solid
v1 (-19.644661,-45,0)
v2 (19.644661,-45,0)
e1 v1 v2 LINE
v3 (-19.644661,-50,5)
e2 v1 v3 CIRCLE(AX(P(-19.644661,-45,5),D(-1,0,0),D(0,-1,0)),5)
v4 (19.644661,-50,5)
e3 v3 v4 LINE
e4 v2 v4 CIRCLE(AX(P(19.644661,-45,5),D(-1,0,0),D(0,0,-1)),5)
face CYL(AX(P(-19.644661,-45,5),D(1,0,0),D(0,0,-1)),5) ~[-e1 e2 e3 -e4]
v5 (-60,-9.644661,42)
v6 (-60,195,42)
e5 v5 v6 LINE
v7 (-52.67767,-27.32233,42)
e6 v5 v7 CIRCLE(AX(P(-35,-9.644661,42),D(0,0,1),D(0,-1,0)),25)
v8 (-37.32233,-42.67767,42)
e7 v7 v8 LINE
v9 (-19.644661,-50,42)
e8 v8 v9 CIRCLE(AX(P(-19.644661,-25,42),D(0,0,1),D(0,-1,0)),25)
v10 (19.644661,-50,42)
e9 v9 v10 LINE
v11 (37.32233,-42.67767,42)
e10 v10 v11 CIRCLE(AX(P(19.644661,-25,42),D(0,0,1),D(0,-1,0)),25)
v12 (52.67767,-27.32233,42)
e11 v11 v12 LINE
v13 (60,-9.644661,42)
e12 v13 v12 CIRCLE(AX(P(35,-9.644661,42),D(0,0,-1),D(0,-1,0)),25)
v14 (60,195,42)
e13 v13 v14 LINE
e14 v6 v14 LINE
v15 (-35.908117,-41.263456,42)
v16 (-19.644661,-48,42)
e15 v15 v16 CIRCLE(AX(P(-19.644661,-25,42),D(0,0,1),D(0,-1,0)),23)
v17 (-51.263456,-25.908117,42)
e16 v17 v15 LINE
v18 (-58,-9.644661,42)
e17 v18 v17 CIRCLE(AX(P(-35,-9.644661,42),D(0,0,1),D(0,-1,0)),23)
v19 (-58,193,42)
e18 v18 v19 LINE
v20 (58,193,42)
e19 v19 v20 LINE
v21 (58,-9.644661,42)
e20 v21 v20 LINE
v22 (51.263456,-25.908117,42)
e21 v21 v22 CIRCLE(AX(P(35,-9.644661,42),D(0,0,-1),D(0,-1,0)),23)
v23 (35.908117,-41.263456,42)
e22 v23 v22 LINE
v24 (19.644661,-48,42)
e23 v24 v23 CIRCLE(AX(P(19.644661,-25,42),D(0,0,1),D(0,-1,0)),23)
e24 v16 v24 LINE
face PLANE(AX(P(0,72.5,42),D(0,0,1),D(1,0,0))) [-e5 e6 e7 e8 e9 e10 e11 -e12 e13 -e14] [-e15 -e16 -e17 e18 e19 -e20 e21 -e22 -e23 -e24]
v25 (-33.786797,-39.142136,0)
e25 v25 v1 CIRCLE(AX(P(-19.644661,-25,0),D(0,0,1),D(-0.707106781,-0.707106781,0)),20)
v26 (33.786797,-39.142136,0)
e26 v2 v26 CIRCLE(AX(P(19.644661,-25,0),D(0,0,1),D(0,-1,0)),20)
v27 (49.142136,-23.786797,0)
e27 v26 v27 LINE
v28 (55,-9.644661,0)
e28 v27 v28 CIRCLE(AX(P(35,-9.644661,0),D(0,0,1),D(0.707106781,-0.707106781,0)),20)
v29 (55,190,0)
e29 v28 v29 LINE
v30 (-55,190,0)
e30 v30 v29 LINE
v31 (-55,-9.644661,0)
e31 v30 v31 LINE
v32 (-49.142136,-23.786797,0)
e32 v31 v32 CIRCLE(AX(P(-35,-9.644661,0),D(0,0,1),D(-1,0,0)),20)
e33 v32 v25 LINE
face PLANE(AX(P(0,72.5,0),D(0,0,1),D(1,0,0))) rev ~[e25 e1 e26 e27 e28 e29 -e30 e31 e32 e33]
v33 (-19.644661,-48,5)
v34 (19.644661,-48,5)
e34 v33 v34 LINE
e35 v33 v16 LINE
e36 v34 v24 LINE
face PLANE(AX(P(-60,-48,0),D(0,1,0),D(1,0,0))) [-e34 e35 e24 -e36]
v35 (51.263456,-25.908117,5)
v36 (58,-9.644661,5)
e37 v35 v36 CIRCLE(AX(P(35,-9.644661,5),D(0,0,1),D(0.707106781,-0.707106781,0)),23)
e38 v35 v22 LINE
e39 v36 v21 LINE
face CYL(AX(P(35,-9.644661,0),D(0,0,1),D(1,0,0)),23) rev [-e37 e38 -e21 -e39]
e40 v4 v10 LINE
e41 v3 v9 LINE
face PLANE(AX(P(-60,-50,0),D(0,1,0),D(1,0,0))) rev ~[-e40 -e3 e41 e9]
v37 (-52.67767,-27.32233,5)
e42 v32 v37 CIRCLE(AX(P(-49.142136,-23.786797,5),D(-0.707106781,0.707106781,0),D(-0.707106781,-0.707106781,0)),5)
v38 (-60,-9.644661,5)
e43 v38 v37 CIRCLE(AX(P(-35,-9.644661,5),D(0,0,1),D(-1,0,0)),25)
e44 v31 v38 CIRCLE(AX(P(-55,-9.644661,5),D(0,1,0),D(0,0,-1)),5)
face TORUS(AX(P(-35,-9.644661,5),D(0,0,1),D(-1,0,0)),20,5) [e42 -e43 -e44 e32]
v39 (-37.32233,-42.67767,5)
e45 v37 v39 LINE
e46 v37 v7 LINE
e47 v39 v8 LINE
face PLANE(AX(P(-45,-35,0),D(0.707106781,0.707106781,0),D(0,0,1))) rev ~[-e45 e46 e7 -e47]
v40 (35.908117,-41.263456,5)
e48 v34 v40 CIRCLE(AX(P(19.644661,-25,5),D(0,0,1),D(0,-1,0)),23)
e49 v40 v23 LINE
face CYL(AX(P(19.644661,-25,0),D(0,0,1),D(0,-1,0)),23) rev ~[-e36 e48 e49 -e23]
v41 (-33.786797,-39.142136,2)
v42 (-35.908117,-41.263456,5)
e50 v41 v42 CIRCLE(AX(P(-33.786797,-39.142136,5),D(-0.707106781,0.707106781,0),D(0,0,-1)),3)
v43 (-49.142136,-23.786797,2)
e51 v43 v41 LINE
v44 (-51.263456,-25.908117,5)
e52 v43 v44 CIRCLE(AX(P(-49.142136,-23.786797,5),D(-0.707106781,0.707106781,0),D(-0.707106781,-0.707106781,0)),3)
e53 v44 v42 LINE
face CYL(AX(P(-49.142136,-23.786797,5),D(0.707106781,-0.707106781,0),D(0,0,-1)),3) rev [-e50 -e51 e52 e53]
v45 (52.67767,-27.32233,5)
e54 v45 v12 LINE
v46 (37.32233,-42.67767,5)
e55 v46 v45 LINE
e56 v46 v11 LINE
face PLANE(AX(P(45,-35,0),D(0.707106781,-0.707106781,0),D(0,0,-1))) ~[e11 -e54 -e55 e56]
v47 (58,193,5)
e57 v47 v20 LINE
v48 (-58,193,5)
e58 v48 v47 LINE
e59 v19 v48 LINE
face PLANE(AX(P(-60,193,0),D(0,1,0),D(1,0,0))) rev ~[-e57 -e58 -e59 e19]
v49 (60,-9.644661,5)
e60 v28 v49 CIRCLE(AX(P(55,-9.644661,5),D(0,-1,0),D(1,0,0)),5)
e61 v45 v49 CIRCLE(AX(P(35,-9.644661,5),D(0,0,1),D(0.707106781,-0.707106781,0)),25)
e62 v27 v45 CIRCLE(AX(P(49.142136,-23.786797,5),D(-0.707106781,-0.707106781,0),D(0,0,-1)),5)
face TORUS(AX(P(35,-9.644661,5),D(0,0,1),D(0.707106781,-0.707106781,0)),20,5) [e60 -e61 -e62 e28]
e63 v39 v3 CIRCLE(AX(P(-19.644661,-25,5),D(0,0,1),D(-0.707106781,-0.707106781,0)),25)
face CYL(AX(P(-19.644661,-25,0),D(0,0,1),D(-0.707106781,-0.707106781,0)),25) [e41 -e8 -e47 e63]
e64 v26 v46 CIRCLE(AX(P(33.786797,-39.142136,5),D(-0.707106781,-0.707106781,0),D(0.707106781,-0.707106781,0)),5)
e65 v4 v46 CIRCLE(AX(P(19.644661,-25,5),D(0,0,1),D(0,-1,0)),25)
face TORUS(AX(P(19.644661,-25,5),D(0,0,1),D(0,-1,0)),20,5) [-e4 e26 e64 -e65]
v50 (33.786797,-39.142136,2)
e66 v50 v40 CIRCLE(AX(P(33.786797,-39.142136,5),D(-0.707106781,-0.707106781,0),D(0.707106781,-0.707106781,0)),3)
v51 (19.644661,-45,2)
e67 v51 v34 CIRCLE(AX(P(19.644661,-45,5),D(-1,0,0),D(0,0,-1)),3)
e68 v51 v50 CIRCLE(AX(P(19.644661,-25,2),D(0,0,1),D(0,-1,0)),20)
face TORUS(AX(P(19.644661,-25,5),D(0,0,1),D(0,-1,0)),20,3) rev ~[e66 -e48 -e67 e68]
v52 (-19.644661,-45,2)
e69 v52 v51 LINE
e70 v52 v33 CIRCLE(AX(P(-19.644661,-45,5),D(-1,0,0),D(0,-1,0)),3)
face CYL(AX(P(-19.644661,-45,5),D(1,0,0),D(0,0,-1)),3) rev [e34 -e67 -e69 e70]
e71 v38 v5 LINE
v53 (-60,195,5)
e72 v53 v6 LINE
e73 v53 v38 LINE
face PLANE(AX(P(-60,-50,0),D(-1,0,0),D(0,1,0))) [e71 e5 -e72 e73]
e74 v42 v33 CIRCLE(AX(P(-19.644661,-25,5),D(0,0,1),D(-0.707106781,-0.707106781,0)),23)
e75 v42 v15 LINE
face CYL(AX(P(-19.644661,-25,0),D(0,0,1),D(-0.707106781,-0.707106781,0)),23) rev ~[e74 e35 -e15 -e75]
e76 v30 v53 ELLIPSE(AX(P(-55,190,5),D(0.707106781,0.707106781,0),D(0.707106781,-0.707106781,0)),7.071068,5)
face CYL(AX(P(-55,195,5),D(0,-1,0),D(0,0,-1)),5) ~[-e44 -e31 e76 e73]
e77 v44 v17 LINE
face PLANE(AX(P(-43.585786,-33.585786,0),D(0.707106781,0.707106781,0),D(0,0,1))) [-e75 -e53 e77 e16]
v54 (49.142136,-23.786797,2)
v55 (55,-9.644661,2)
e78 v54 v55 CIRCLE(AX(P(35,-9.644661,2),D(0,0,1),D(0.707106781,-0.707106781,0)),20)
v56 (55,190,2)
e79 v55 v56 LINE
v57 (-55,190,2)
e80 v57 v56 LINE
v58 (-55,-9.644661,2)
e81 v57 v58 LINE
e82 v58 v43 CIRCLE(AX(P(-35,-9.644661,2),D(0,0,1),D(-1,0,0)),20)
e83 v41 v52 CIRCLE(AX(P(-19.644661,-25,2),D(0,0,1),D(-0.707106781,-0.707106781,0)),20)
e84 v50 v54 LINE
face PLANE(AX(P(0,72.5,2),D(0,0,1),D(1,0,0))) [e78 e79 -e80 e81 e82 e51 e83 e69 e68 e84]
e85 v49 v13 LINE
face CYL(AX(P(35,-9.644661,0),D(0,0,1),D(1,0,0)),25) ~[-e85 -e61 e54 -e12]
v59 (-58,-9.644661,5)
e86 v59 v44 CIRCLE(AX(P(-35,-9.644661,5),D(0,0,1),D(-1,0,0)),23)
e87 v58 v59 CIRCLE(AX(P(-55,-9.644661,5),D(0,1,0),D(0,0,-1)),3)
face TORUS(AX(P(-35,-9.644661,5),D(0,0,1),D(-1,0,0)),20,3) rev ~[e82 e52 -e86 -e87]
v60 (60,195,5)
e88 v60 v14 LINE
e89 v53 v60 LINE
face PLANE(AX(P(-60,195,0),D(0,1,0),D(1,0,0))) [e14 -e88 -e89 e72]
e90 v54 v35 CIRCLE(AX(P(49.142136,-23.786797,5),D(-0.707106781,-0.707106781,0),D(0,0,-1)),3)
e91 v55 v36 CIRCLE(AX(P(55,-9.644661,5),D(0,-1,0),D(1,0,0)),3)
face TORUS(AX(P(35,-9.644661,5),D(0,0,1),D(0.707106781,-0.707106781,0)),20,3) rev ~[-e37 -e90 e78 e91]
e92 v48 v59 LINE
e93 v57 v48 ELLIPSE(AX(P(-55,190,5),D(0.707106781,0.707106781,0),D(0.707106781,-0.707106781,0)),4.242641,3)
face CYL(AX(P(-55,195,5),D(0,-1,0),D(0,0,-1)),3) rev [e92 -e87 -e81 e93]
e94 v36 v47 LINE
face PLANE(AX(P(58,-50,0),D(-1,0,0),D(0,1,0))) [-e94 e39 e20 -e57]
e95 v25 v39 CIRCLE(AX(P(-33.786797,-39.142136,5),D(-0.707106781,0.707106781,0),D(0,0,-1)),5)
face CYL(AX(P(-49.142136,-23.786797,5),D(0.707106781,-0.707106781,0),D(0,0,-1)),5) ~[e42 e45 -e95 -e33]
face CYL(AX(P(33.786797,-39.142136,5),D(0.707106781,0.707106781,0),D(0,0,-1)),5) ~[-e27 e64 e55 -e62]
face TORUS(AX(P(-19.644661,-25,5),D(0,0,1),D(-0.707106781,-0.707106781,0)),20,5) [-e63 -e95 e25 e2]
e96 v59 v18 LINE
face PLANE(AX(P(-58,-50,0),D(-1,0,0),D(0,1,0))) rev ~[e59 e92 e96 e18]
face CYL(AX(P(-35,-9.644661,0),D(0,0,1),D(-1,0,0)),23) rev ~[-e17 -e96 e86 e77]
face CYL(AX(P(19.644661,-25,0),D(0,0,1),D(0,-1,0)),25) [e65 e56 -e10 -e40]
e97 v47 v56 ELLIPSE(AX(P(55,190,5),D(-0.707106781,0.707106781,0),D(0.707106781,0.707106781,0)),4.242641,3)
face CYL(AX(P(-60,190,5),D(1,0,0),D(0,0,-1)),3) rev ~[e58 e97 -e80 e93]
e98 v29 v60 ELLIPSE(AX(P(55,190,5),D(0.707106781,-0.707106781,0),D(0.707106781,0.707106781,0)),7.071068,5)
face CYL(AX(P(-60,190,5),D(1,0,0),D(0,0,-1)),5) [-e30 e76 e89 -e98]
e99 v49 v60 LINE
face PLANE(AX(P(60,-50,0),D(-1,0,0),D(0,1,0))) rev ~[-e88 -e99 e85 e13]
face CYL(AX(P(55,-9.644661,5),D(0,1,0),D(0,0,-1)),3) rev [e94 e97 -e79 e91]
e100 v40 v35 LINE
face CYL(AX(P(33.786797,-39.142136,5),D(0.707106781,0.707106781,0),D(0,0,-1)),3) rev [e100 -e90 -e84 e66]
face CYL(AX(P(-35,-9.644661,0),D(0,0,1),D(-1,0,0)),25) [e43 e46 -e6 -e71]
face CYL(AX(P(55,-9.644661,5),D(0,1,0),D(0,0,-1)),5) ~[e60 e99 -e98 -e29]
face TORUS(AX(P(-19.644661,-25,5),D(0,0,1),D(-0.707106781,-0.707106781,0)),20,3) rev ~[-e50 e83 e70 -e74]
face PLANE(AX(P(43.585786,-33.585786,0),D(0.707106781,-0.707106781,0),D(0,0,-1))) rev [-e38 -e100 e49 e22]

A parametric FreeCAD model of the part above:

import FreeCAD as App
import Part
import Sketcher
Q = App.Units.Quantity


def edges_at(feature, points):
    """Names of the edges that pass closest to the given points."""
    edges = feature.Shape.Edges
    near = lambda p: min(range(len(edges)), key=lambda i: edges[i].distToShape(Part.Vertex(*p))[0])
    return sorted({f"Edge{near(p) + 1}" for p in points})


def faces_at(feature, points):
    """Names of the faces that lie closest to the given points."""
    faces = feature.Shape.Faces
    near = lambda p: min(range(len(faces)), key=lambda i: faces[i].distToShape(Part.Vertex(*p))[0])
    return sorted({f"Face{near(p) + 1}" for p in points})


def add_polygon(sketch, points):
    """Adds a closed chain of lines whose ends are joined by coincident constraints."""
    first, n = sketch.GeometryCount, len(points)
    for a, b in zip(points, points[1:] + points[:1]):
        sketch.addGeometry(Part.LineSegment(App.Vector(*a, 0), App.Vector(*b, 0)), False)
    for i in range(n):
        sketch.addConstraint(Sketcher.Constraint("Coincident", first + i, 2, first + (i + 1) % n, 1))

doc = App.newDocument("Part")
body = doc.addObject("PartDesign::Body", "Body")

# Sketch on XY plane
sketch1 = doc.addObject("Sketcher::SketchObject", "Sketch")
body.addObject(sketch1)
sketch1.AttachmentSupport = (doc.XY_Plane, [""])
sketch1.MapMode = "FlatFace"
add_polygon(sketch1, [(-60, 195), (-60, -50), (60, -50), (60, 195)])  # lines 0-3
sketch1.addConstraint(Sketcher.Constraint("Vertical", 0))
sketch1.addConstraint(Sketcher.Constraint("Horizontal", 1))
sketch1.addConstraint(Sketcher.Constraint("Vertical", 2))
sketch1.addConstraint(Sketcher.Constraint("Horizontal", 3))
sketch1.addConstraint(Sketcher.Constraint("DistanceX", 1, 1, 1, 2, Q("120 mm")))
sketch1.addConstraint(Sketcher.Constraint("DistanceY", 0, 2, 0, 1, Q("245 mm")))
sketch1.addConstraint(Sketcher.Constraint("DistanceX", 0, 2, -1, 1, Q("60 mm")))
sketch1.addConstraint(Sketcher.Constraint("DistanceY", 0, 2, -1, 1, Q("50 mm")))
pad1 = doc.addObject("PartDesign::Pad", "Pad")
body.addObject(pad1)
pad1.Profile = sketch1
pad1.Length = 42
doc.recompute()

chamfer = doc.addObject("PartDesign::Chamfer", "Chamfer")
body.addObject(chamfer)
chamfer.Base = (pad1, edges_at(pad1, [(60, -50, 21), (-60, -50, 21)]))
chamfer.Size = 30
doc.recompute()

fillet = doc.addObject("PartDesign::Fillet", "Fillet")
body.addObject(fillet)
fillet.Base = (chamfer, edges_at(chamfer, [
    (30, -50, 21),
    (-30, -50, 21),
    (-60, -20, 21),
    (60, -20, 21),
]))
fillet.Radius = 25
doc.recompute()

fillet2 = doc.addObject("PartDesign::Fillet", "Fillet001")
body.addObject(fillet2)
fillet2.Base = (fillet, edges_at(fillet, [
    (-45, -35, 0),
    (0, -50, 0),
    (60, 92.678, 0),
    (45, -35, 0),
    (58.097, -19.212, 0),
    (29.212, -48.097, 0),
    (-29.212, -48.097, 0),
    (-58.097, -19.212, 0),
    (0, 195, 0),
    (-60, 92.678, 0),
]))
fillet2.Radius = 5
doc.recompute()

thickness = doc.addObject("PartDesign::Thickness", "Thickness")
body.addObject(thickness)
thickness.Base = (fillet2, faces_at(fillet2, [(0, 72.5, 42)]))
thickness.Value = 2
thickness.Reversed = True
thickness.Join = "Arc"

doc.recompute()
